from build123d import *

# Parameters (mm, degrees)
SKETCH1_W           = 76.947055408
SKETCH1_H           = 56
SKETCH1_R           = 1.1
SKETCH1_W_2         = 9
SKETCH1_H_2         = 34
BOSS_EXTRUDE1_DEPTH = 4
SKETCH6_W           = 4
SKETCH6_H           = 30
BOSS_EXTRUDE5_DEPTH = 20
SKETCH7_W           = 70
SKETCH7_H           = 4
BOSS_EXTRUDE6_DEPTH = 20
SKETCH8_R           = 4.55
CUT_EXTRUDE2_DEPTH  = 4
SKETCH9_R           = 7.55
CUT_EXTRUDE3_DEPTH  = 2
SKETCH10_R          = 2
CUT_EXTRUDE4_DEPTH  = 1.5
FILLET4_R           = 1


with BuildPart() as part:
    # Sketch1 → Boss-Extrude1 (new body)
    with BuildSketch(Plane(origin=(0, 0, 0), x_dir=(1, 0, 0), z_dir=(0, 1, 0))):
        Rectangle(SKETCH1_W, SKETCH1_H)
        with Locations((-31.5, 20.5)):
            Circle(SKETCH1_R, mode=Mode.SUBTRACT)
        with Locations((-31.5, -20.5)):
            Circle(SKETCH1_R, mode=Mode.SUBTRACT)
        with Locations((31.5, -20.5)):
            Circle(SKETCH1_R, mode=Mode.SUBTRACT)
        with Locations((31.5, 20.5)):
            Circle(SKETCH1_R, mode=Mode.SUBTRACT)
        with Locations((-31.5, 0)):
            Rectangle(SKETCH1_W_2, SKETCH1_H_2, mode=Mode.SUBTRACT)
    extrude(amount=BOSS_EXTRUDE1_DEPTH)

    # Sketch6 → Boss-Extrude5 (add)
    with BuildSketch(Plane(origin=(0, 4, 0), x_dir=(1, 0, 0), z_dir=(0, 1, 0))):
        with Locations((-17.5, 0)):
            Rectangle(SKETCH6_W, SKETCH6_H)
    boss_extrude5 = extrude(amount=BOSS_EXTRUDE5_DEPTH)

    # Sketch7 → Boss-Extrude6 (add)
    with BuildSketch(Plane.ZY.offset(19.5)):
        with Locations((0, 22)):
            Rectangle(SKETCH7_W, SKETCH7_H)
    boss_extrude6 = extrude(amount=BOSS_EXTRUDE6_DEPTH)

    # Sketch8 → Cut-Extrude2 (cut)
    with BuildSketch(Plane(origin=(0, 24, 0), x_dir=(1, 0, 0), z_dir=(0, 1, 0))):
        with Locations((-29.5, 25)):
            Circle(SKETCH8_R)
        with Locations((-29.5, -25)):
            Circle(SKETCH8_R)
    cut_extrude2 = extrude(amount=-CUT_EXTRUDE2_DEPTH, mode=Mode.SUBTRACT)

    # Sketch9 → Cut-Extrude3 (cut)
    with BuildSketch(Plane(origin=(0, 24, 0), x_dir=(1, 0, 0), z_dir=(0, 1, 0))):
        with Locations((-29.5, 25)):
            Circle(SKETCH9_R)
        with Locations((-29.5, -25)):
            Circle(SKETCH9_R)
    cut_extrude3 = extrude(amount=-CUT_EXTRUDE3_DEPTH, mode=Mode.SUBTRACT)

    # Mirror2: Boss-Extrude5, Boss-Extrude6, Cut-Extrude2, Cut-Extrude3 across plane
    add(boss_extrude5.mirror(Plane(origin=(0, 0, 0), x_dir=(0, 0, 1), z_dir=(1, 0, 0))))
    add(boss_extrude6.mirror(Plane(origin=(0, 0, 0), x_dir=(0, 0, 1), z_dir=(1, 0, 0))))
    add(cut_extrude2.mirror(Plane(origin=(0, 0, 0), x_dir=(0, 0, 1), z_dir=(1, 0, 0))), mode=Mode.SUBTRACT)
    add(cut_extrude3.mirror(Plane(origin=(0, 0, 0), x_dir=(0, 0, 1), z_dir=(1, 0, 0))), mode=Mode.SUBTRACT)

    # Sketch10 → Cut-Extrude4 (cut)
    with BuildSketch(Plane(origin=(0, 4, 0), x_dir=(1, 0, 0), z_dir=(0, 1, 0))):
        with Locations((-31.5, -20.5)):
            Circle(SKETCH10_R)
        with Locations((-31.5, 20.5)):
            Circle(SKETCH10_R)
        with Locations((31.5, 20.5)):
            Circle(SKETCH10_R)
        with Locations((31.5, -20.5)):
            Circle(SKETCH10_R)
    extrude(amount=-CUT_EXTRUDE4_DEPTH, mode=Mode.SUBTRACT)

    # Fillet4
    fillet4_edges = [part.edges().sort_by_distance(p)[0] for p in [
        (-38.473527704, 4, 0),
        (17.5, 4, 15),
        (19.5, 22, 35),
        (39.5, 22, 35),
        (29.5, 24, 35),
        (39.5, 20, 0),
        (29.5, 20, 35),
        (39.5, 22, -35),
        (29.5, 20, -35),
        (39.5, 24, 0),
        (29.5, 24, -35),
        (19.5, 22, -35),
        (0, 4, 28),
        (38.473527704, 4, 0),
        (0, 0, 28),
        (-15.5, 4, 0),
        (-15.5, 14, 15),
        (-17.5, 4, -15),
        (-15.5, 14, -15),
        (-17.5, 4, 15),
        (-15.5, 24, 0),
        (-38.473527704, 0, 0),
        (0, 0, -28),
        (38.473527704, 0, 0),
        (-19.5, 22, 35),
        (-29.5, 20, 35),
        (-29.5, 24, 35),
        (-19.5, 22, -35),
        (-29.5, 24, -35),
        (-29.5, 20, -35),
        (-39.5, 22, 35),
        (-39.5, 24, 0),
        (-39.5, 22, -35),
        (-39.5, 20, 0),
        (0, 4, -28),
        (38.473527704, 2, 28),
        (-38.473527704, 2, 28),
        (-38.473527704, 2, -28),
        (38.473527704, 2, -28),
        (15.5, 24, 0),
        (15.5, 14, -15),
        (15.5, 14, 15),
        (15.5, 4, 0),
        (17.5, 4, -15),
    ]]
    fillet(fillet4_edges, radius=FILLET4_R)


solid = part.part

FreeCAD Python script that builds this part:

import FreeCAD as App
import Part
import Sketcher
Q = App.Units.Quantity


def edges_at(feature, points):
    """Names of the edges that pass closest to the given points."""
    edges = feature.Shape.Edges
    near = lambda p: min(range(len(edges)), key=lambda i: edges[i].distToShape(Part.Vertex(*p))[0])
    return sorted({f"Edge{near(p) + 1}" for p in points})


def add_polygon(sketch, points):
    """Adds a closed chain of lines whose ends are joined by coincident constraints."""
    first, n = sketch.GeometryCount, len(points)
    for a, b in zip(points, points[1:] + points[:1]):
        sketch.addGeometry(Part.LineSegment(App.Vector(*a, 0), App.Vector(*b, 0)), False)
    for i in range(n):
        sketch.addConstraint(Sketcher.Constraint("Coincident", first + i, 2, first + (i + 1) % n, 1))

doc = App.newDocument("Part")
body = doc.addObject("PartDesign::Body", "Body")

# Sketch on XZ plane
sketch1 = body.newObject("Sketcher::SketchObject", "Sketch")
sketch1.AttachmentSupport = (doc.getObject("XZ_Plane"), [""])
sketch1.MapMode = "FlatFace"
add_polygon(sketch1, [(-38.5, -28), (-38.5, 28), (38.5, 28), (38.5, -28)])  # lines 0-3
sketch1.addGeometry(Part.Circle(App.Vector(-31.5, 20.5, 0), App.Vector(0, 0, 1), 1.1), False)  # 4
sketch1.addGeometry(Part.Circle(App.Vector(31.5, 20.5, 0), App.Vector(0, 0, 1), 1.1), False)  # 5
add_polygon(sketch1, [(-27, 17), (-36, 17), (-36, -17), (-27, -17)])  # lines 6-9
sketch1.addGeometry(Part.Circle(App.Vector(-31.5, -20.5, 0), App.Vector(0, 0, 1), 1.1), False)  # 10
sketch1.addGeometry(Part.Circle(App.Vector(31.5, -20.5, 0), App.Vector(0, 0, 1), 1.1), False)  # 11
sketch1.addConstraint([
    Sketcher.Constraint("Vertical", 0),
    Sketcher.Constraint("Horizontal", 1),
    Sketcher.Constraint("Vertical", 2),
    Sketcher.Constraint("Horizontal", 3),
    Sketcher.Constraint("Horizontal", 6),
    Sketcher.Constraint("Vertical", 7),
    Sketcher.Constraint("Horizontal", 8),
    Sketcher.Constraint("Vertical", 9),
    Sketcher.Constraint("Equal", 4, 5),
    Sketcher.Constraint("Equal", 5, 10),
    Sketcher.Constraint("Equal", 10, 11),
    Sketcher.Constraint("Symmetric", 5, 3, 10, 3, -1, 1),
    Sketcher.Constraint("Symmetric", 4, 3, 11, 3, -1, 1),
    Sketcher.Constraint("Symmetric", 0, 2, 2, 2, -1, 1),
    Sketcher.Constraint("Symmetric", 4, 3, 5, 3, -2),
    Sketcher.Constraint("Diameter", 4, Q("2.2 mm")),
    Sketcher.Constraint("DistanceX", 6, 2, 6, 1, Q("9 mm")),
    Sketcher.Constraint("DistanceY", 0, 1, 0, 2, Q("56 mm")),
    Sketcher.Constraint("DistanceY", 7, 2, 7, 1, Q("34 mm")),
    Sketcher.Constraint("DistanceX", 6, 2, -1, 1, Q("36 mm")),
    Sketcher.Constraint("DistanceY", -1, 1, 6, 2, Q("17 mm")),
    Sketcher.Constraint("DistanceX", 4, 3, 5, 3, Q("63 mm")),
    Sketcher.Constraint("DistanceY", 10, 3, 4, 3, Q("41 mm")),
    Sketcher.Constraint("DistanceX", 1, 1, 1, 2, Q("76.947055 mm")),
])
pad1 = body.newObject("PartDesign::Pad", "Pad")
pad1.Profile = sketch1
pad1.Length = 4
pad1.Reversed = True

# Sketch on XZ plane
sketch2 = body.newObject("Sketcher::SketchObject", "Sketch001")
sketch2.AttachmentSupport = (doc.getObject("XZ_Plane"), [""])
sketch2.MapMode = "FlatFace"
sketch2.AttachmentOffset = App.Placement(App.Vector(0, 0, -4), App.Rotation())
add_polygon(sketch2, [(-19.5, -15), (-19.5, 15), (-15.5, 15), (-15.5, -15)])  # lines 0-3
sketch2.addConstraint([
    Sketcher.Constraint("Vertical", 0),
    Sketcher.Constraint("Horizontal", 1),
    Sketcher.Constraint("Vertical", 2),
    Sketcher.Constraint("Horizontal", 3),
    Sketcher.Constraint("DistanceX", 1, 1, 1, 2, Q("4 mm")),
    Sketcher.Constraint("DistanceY", 0, 1, 0, 2, Q("30 mm")),
    Sketcher.Constraint("DistanceY", -1, 1, 0, 2, Q("15 mm")),
    Sketcher.Constraint("DistanceX", 0, 2, -1, 1, Q("19.5 mm")),
])
pad2 = body.newObject("PartDesign::Pad", "Pad001")
pad2.Profile = sketch2
pad2.Length = 20
pad2.Reversed = True

# Sketch on YZ plane
sketch3 = body.newObject("Sketcher::SketchObject", "Sketch002")
sketch3.AttachmentSupport = (doc.getObject("YZ_Plane"), [""])
sketch3.MapMode = "FlatFace"
sketch3.AttachmentOffset = App.Placement(App.Vector(0, 0, -19.5), App.Rotation())
add_polygon(sketch3, [(24, -35), (20, -35), (20, 35), (24, 35)])  # lines 0-3
sketch3.addConstraint([
    Sketcher.Constraint("Horizontal", 0),
    Sketcher.Constraint("Vertical", 1),
    Sketcher.Constraint("Horizontal", 2),
    Sketcher.Constraint("Vertical", 3),
    Sketcher.Constraint("DistanceX", 0, 2, 0, 1, Q("4 mm")),
    Sketcher.Constraint("DistanceY", 1, 1, 1, 2, Q("70 mm")),
    Sketcher.Constraint("DistanceX", -1, 1, 0, 2, Q("20 mm")),
    Sketcher.Constraint("DistanceY", 0, 2, -1, 1, Q("35 mm")),
])
pad3 = body.newObject("PartDesign::Pad", "Pad002")
pad3.Profile = sketch3
pad3.Length = 20
pad3.Reversed = True

# Sketch on XZ plane
sketch4 = body.newObject("Sketcher::SketchObject", "Sketch003")
sketch4.AttachmentSupport = (doc.getObject("XZ_Plane"), [""])
sketch4.MapMode = "FlatFace"
sketch4.AttachmentOffset = App.Placement(App.Vector(0, 0, -24), App.Rotation())
sketch4.addGeometry([
    Part.Circle(App.Vector(-29.5, -25, 0), App.Vector(0, 0, 1), 4.5),
    Part.Circle(App.Vector(-29.5, 25, 0), App.Vector(0, 0, 1), 4.5),
], False)
sketch4.addConstraint([
    Sketcher.Constraint("Equal", 0, 1),
    Sketcher.Constraint("Symmetric", 0, 3, 1, 3, -1),
    Sketcher.Constraint("Diameter", 0, Q("9.1 mm")),
    Sketcher.Constraint("DistanceY", 0, 3, -1, 1, Q("25 mm")),
    Sketcher.Constraint("DistanceX", 0, 3, -1, 1, Q("29.5 mm")),
])
pocket1 = body.newObject("PartDesign::Pocket", "Pocket")
pocket1.Profile = sketch4
pocket1.Length = 4
pocket1.Reversed = True

# Sketch on XZ plane
sketch5 = body.newObject("Sketcher::SketchObject", "Sketch004")
sketch5.AttachmentSupport = (doc.getObject("XZ_Plane"), [""])
sketch5.MapMode = "FlatFace"
sketch5.AttachmentOffset = App.Placement(App.Vector(0, 0, -24), App.Rotation())
sketch5.addGeometry([
    Part.Circle(App.Vector(-30, -25, 0), App.Vector(0, 0, 1), 8),
    Part.Circle(App.Vector(-30, 25, 0), App.Vector(0, 0, 1), 8),
], False)
sketch5.addConstraint([
    Sketcher.Constraint("Equal", 0, 1),
    Sketcher.Constraint("Symmetric", 0, 3, 1, 3, -1),
    Sketcher.Constraint("Diameter", 0, Q("15.1 mm")),
    Sketcher.Constraint("DistanceY", 0, 3, -1, 1, Q("25 mm")),
    Sketcher.Constraint("DistanceX", 0, 3, -1, 1, Q("29.5 mm")),
])
pocket2 = body.newObject("PartDesign::Pocket", "Pocket001")
pocket2.Profile = sketch5
pocket2.Length = 2
pocket2.Reversed = True
doc.recompute()

mirrored = body.newObject("PartDesign::Mirrored", "Mirrored")
mirrored.Originals = [pad2, pad3, pocket1, pocket2]
mirrored.MirrorPlane = (doc.getObject("YZ_Plane"), [""])
body.Tip = mirrored

# Sketch on XZ plane
sketch6 = body.newObject("Sketcher::SketchObject", "Sketch005")
sketch6.AttachmentSupport = (doc.getObject("XZ_Plane"), [""])
sketch6.MapMode = "FlatFace"
sketch6.AttachmentOffset = App.Placement(App.Vector(0, 0, -4), App.Rotation())
sketch6.addGeometry([
    Part.Circle(App.Vector(-31.5, 20.5, 0), App.Vector(0, 0, 1), 2),
    Part.Circle(App.Vector(-31.5, -20.5, 0), App.Vector(0, 0, 1), 2),
    Part.Circle(App.Vector(31.5, -20.5, 0), App.Vector(0, 0, 1), 2),
    Part.Circle(App.Vector(31.5, 20.5, 0), App.Vector(0, 0, 1), 2),
], False)
sketch6.addConstraint([
    Sketcher.Constraint("Equal", 0, 1),
    Sketcher.Constraint("Equal", 1, 2),
    Sketcher.Constraint("Equal", 2, 3),
    Sketcher.Constraint("Symmetric", 0, 3, 2, 3, -1, 1),
    Sketcher.Constraint("Symmetric", 1, 3, 3, 3, -1, 1),
    Sketcher.Constraint("Symmetric", 1, 3, 2, 3, -2),
    Sketcher.Constraint("Diameter", 0, Q("4 mm")),
    Sketcher.Constraint("DistanceY", 1, 3, 0, 3, Q("41 mm")),
    Sketcher.Constraint("DistanceX", 1, 3, 2, 3, Q("63 mm")),
])
pocket3 = body.newObject("PartDesign::Pocket", "Pocket002")
pocket3.Profile = sketch6
pocket3.Length = 1.5
pocket3.Reversed = True
doc.recompute()

fillet = body.newObject("PartDesign::Fillet", "Fillet")
fillet.Base = (pocket3, edges_at(pocket3, [
    (-38.474, 4, 0),
    (17.5, 4, 15),
    (19.5, 22, 35),
    (39.5, 22, 35),
    (29.5, 24, 35),
    (39.5, 20, 0),
    (29.5, 20, 35),
    (39.5, 22, -35),
    (29.5, 20, -35),
    (39.5, 24, 0),
    (29.5, 24, -35),
    (19.5, 22, -35),
    (0, 4, 28),
    (38.474, 4, 0),
    (0, 0, 28),
    (-15.5, 4, 0),
    (-15.5, 14, 15),
    (-17.5, 4, -15),
    (-15.5, 14, -15),
    (-17.5, 4, 15),
    (-15.5, 24, 0),
    (-38.474, 0, 0),
    (0, 0, -28),
    (38.474, 0, 0),
    (-19.5, 22, 35),
    (-29.5, 20, 35),
    (-29.5, 24, 35),
    (-19.5, 22, -35),
    (-29.5, 24, -35),
    (-29.5, 20, -35),
    (-39.5, 22, 35),
    (-39.5, 24, 0),
    (-39.5, 22, -35),
    (-39.5, 20, 0),
    (0, 4, -28),
    (38.474, 2, 28),
    (-38.474, 2, 28),
    (-38.474, 2, -28),
    (38.474, 2, -28),
    (15.5, 24, 0),
    (15.5, 14, -15),
    (15.5, 14, 15),
    (15.5, 4, 0),
    (17.5, 4, -15),
]))
fillet.Radius = 1

doc.recompute()
